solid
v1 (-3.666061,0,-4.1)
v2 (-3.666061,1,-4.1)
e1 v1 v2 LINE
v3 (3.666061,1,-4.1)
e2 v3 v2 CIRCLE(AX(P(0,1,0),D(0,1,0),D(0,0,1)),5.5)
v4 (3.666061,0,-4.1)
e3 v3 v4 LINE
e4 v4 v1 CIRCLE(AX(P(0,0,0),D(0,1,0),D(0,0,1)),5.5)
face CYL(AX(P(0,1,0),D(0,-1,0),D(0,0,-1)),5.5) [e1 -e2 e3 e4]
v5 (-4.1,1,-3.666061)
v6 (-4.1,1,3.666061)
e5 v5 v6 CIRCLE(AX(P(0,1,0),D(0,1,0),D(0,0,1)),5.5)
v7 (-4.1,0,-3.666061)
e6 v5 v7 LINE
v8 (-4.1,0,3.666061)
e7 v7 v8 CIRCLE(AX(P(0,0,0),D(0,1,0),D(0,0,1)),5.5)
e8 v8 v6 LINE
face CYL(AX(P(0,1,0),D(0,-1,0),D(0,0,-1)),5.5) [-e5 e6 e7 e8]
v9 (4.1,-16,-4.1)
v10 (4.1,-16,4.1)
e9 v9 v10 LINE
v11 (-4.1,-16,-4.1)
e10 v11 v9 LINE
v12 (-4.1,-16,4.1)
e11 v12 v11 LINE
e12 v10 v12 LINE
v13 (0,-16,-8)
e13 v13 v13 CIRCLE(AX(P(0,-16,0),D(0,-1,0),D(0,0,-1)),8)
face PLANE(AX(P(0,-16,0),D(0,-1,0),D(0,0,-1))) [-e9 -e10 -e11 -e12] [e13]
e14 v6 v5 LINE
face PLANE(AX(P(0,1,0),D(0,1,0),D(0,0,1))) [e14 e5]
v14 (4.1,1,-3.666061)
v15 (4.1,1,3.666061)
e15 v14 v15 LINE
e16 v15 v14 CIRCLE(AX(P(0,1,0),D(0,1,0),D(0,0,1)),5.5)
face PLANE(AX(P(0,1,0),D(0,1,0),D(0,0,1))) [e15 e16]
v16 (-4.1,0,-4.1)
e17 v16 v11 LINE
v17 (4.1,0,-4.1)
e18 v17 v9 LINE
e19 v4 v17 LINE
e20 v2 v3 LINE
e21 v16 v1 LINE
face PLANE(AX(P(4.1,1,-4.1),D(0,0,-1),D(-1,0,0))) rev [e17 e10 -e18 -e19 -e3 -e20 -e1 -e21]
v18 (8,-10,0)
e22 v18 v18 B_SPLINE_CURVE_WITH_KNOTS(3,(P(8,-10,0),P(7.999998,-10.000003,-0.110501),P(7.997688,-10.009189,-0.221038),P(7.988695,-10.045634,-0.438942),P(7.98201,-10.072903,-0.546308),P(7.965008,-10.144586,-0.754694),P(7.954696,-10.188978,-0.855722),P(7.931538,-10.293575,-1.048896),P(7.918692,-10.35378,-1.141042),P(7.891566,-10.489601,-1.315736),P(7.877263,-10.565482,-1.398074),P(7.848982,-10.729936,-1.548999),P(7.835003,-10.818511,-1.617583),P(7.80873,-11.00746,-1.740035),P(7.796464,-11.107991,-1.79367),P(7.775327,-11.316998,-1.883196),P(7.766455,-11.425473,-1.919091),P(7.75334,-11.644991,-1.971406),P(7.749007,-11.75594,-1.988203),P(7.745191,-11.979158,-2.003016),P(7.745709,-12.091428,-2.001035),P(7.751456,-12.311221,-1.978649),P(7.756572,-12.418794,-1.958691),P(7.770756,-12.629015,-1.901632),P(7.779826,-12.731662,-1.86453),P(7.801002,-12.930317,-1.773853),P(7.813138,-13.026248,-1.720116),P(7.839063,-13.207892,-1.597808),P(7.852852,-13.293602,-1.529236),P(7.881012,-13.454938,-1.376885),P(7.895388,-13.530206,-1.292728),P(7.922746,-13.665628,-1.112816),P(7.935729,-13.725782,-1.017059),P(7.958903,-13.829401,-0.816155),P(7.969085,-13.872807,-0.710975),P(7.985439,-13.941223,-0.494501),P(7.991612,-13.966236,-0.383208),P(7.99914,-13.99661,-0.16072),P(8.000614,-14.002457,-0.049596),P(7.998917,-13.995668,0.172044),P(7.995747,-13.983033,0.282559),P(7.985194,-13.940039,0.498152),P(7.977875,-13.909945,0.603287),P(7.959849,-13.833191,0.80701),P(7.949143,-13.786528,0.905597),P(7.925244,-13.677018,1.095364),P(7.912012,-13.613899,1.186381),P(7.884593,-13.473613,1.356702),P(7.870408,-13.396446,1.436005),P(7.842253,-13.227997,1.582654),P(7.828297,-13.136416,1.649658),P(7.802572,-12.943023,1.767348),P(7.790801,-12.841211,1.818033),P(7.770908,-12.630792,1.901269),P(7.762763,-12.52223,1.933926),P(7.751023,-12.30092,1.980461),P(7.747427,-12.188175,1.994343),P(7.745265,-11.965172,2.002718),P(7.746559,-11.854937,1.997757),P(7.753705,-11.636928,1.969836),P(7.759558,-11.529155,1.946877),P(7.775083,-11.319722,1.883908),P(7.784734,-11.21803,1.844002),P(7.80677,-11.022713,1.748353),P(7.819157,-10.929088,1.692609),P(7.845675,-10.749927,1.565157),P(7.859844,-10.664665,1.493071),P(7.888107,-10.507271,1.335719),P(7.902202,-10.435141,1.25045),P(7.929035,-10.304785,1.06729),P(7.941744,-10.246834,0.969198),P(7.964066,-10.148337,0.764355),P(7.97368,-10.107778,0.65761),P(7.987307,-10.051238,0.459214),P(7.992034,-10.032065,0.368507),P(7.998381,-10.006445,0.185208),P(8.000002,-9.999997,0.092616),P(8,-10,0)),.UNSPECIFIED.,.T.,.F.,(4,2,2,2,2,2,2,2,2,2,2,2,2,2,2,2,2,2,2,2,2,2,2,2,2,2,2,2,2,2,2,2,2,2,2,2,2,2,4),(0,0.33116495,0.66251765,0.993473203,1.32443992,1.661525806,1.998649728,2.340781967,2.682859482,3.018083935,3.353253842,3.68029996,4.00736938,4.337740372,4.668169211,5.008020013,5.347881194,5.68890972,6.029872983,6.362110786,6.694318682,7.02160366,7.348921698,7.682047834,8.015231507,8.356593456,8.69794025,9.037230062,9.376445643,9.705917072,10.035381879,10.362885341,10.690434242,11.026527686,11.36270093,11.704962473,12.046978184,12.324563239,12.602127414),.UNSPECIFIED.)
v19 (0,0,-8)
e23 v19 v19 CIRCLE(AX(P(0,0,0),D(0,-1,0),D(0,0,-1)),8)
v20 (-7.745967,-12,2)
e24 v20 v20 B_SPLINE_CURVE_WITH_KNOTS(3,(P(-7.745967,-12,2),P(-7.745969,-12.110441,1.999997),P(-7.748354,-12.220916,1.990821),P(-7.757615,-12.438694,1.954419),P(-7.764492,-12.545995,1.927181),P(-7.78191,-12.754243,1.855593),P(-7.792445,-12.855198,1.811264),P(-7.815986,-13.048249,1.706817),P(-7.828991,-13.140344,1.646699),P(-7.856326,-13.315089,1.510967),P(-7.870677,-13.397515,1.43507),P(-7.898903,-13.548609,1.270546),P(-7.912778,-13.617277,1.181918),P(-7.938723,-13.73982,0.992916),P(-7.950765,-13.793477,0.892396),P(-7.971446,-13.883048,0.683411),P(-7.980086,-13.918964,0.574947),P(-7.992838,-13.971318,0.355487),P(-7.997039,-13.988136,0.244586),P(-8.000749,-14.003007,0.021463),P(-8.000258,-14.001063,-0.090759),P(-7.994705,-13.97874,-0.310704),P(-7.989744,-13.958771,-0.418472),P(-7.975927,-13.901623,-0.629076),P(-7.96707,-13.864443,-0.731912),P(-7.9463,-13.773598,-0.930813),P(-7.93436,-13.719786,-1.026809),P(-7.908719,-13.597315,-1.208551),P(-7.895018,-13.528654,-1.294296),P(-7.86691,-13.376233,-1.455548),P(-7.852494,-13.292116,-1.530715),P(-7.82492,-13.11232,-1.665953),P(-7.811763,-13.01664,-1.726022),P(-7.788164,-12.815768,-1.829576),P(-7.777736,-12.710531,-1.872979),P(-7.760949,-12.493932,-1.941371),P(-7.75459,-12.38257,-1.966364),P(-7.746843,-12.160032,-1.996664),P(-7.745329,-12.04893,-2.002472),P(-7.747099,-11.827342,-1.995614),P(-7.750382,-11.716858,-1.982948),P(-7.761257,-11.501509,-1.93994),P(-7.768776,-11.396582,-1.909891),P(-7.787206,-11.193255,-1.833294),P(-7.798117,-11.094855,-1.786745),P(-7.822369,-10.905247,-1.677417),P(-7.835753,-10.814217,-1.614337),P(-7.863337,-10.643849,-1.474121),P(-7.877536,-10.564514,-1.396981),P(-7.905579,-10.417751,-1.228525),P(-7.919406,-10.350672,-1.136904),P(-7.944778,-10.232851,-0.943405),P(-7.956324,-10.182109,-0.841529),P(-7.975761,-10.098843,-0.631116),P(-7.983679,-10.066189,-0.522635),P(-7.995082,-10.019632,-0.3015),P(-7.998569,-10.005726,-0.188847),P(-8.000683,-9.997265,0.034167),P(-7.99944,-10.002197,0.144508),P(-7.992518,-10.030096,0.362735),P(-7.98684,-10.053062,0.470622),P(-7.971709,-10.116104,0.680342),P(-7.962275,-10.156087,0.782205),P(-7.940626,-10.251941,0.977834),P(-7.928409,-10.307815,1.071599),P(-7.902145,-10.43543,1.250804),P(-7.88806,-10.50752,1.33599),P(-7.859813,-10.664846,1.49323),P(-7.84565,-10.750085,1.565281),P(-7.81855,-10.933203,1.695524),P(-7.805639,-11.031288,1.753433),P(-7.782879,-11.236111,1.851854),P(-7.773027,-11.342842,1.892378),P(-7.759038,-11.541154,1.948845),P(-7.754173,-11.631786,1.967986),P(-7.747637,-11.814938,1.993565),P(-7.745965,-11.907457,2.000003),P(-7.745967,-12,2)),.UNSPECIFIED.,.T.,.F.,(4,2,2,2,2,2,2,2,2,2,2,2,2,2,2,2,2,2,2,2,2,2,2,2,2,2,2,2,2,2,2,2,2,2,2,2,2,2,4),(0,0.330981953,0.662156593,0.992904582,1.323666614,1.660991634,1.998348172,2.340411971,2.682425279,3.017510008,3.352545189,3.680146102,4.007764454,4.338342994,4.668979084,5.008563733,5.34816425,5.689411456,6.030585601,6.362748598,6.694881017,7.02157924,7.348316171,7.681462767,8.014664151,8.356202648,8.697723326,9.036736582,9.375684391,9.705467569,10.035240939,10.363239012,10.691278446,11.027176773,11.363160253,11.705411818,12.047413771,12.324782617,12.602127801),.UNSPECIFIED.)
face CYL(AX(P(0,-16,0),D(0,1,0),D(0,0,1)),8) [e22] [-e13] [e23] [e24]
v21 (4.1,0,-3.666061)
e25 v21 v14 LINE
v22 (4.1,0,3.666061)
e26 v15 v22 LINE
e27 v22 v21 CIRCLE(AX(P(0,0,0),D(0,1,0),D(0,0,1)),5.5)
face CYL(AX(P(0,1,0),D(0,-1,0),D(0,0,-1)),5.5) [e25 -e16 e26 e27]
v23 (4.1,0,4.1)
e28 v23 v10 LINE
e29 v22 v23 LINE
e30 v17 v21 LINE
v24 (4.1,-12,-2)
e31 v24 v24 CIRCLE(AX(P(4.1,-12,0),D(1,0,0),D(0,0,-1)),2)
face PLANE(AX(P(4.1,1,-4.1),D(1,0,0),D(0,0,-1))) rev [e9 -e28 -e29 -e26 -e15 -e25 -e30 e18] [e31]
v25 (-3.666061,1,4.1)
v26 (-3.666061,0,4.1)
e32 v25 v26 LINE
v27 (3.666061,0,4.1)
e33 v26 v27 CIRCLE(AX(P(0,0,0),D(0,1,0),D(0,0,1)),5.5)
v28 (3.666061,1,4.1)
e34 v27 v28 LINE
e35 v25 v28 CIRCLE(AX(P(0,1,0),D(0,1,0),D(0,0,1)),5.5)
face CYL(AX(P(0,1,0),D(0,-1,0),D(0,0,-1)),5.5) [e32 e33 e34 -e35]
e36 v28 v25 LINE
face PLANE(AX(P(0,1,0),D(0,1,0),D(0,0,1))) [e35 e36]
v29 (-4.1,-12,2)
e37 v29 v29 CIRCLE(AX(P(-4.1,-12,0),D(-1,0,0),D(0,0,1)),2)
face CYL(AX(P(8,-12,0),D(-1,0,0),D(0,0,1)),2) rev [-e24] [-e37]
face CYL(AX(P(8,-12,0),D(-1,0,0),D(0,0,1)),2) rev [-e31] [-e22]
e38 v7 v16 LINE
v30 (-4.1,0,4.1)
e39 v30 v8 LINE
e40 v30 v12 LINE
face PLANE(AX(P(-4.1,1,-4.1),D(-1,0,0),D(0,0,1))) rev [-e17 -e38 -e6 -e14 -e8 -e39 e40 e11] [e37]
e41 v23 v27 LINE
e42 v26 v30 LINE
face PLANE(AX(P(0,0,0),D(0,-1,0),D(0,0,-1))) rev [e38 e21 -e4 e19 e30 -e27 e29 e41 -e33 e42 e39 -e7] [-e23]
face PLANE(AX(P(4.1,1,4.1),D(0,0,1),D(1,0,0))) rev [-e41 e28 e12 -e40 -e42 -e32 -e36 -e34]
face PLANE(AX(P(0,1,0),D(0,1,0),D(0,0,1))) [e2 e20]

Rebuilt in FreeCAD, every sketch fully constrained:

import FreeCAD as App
import Part
import Sketcher

V = App.Vector


def add_polygon(sketch, points):
    """Adds a closed chain of lines whose ends are joined by coincident constraints."""
    first, n = sketch.GeometryCount, len(points)
    for a, b in zip(points, points[1:] + points[:1]):
        sketch.addGeometry(Part.LineSegment(App.Vector(*a, 0), App.Vector(*b, 0)), False)
    for i in range(n):
        sketch.addConstraint(Sketcher.Constraint("Coincident", first + i, 2, first + (i + 1) % n, 1))

doc = App.newDocument("Part")
body = doc.addObject("PartDesign::Body", "Body")

# Sketch on XZ plane
sketch1 = body.newObject("Sketcher::SketchObject", "Sketch")
sketch1.AttachmentSupport = (doc.getObject("XZ_Plane"), [""])
sketch1.MapMode = "FlatFace"
sketch1.addGeometry(Part.Circle(V(0, 0, 0), V(0, 0, 1), 6), False)
sketch1.addConstraint([
    Sketcher.Constraint("Coincident", 0, 3, -1, 1),
    Sketcher.Constraint("Diameter", 0, 11.0),
])
pad1 = body.newObject("PartDesign::Pad", "Pad")
pad1.Profile = sketch1
pad1.Length = 1
pad1.Reversed = True

# Sketch on XZ plane
sketch2 = body.newObject("Sketcher::SketchObject", "Sketch001")
sketch2.AttachmentSupport = (doc.getObject("XZ_Plane"), [""])
sketch2.MapMode = "FlatFace"
sketch2.addGeometry(Part.Circle(V(0, 0, 0), V(0, 0, 1), 8), False)
sketch2.addConstraint([
    Sketcher.Constraint("Coincident", 0, 3, -1, 1),
    Sketcher.Constraint("Diameter", 0, 16.0),
])
pad2 = body.newObject("PartDesign::Pad", "Pad001")
pad2.Profile = sketch2
pad2.Length = 16

# Sketch on XZ plane
sketch3 = body.newObject("Sketcher::SketchObject", "Sketch002")
sketch3.AttachmentSupport = (doc.getObject("XZ_Plane"), [""])
sketch3.MapMode = "FlatFace"
sketch3.AttachmentOffset = App.Placement(V(0, 0, 16), App.Rotation())
add_polygon(sketch3, [(-4, 4), (-4, -4), (4, -4), (4, 4)])  # lines 0-3
sketch3.addConstraint([
    Sketcher.Constraint("Vertical", 0),
    Sketcher.Constraint("Horizontal", 1),
    Sketcher.Constraint("Vertical", 2),
    Sketcher.Constraint("Horizontal", 3),
    Sketcher.Constraint("Symmetric", 0, 2, 2, 2, -1, 1),
    Sketcher.Constraint("Equal", 3, 0),
    Sketcher.Constraint("DistanceX", 1, 1, 1, 2, 8.2),
])
pocket1 = body.newObject("PartDesign::Pocket", "Pocket")
pocket1.Profile = sketch3
pocket1.Type = "ThroughAll"

# Sketch on YZ plane
sketch4 = body.newObject("Sketcher::SketchObject", "Sketch003")
sketch4.AttachmentSupport = (doc.getObject("YZ_Plane"), [""])
sketch4.MapMode = "FlatFace"
sketch4.AttachmentOffset = App.Placement(V(0, 0, -8), App.Rotation())
sketch4.addGeometry(Part.Circle(V(-12, 0, 0), V(0, 0, 1), 2), False)
sketch4.addConstraint([
    Sketcher.Constraint("PointOnObject", 0, 3, -1),
    Sketcher.Constraint("Diameter", 0, 4.0),
    Sketcher.Constraint("DistanceX", 0, 3, -1, 1, 12.0),
])
pocket2 = body.newObject("PartDesign::Pocket", "Pocket001")
pocket2.Profile = sketch4
pocket2.Type = "ThroughAll"
pocket2.Reversed = True

doc.recompute()
